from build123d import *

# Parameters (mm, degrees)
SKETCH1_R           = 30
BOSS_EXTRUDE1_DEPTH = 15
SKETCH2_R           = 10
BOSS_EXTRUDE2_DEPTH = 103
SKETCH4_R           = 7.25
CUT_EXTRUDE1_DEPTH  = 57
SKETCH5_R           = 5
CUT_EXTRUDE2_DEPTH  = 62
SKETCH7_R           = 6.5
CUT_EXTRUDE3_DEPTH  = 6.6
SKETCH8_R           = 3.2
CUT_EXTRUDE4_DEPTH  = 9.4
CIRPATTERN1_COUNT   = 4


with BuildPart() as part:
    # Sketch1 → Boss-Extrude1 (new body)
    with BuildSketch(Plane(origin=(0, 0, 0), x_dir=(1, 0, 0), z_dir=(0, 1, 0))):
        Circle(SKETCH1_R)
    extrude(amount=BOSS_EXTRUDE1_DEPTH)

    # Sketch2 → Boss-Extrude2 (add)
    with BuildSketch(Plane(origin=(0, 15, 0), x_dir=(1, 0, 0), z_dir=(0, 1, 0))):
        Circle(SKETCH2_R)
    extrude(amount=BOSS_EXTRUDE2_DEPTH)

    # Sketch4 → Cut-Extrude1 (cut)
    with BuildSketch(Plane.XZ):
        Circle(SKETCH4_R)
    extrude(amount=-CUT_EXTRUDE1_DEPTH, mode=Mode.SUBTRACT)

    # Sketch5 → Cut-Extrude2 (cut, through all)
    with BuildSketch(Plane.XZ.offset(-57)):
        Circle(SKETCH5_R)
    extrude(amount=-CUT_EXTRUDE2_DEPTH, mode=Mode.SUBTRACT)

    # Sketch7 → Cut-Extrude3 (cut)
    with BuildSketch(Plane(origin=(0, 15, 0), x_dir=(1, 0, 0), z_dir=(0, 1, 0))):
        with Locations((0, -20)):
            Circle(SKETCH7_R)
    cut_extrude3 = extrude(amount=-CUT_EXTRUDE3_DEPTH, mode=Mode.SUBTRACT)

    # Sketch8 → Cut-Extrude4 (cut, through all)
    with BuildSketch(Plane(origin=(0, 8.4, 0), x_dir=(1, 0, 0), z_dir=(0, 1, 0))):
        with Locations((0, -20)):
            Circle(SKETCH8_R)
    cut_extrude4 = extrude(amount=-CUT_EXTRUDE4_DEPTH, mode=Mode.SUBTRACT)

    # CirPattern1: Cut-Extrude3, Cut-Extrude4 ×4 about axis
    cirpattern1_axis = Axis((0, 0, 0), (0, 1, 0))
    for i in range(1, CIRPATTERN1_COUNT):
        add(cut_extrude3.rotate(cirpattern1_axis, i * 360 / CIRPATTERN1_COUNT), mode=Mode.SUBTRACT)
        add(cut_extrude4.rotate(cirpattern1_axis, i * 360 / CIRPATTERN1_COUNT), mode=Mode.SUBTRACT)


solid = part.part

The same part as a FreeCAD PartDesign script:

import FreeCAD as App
import Part
import Sketcher
from FreeCAD import Vector
Q = App.Units.Quantity

doc = App.newDocument("Part")
body = doc.addObject("PartDesign::Body", "Body")

sketch1 = body.newObject("Sketcher::SketchObject", "Sketch")
sketch1.AttachmentSupport = (doc.getObject("XZ_Plane"), [""])
sketch1.MapMode = "FlatFace"
sketch1.addGeometry(Part.Circle(Vector(0, 0, 0), Vector(0, 0, 1), 30), False)
sketch1.addConstraint([
    Sketcher.Constraint("Coincident", 0, 3, -1, 1),
    Sketcher.Constraint("Diameter", 0, Q("60 mm")),
])
pad1 = body.newObject("PartDesign::Pad", "Pad")
pad1.Profile = sketch1
pad1.Length = 15
pad1.Reversed = True

sketch2 = body.newObject("Sketcher::SketchObject", "Sketch001")
sketch2.AttachmentSupport = (doc.getObject("XZ_Plane"), [""])
sketch2.MapMode = "FlatFace"
sketch2.AttachmentOffset = App.Placement(Vector(0, 0, -15), App.Rotation())
sketch2.addGeometry(Part.Circle(Vector(0, 0, 0), Vector(0, 0, 1), 10), False)
sketch2.addConstraint([
    Sketcher.Constraint("Coincident", 0, 3, -1, 1),
    Sketcher.Constraint("Diameter", 0, Q("20 mm")),
])
pad2 = body.newObject("PartDesign::Pad", "Pad001")
pad2.Profile = sketch2
pad2.Length = 103
pad2.Reversed = True

sketch3 = body.newObject("Sketcher::SketchObject", "Sketch002")
sketch3.AttachmentSupport = (doc.getObject("XZ_Plane"), [""])
sketch3.MapMode = "FlatFace"
sketch3.addGeometry(Part.Circle(Vector(0, 0, 0), Vector(0, 0, 1), 7), False)
sketch3.addConstraint([
    Sketcher.Constraint("Coincident", 0, 3, -1, 1),
    Sketcher.Constraint("Diameter", 0, Q("14.5 mm")),
])
pocket1 = body.newObject("PartDesign::Pocket", "Pocket")
pocket1.Profile = sketch3
pocket1.Length = 57

sketch4 = body.newObject("Sketcher::SketchObject", "Sketch003")
sketch4.AttachmentSupport = (doc.getObject("XZ_Plane"), [""])
sketch4.MapMode = "FlatFace"
sketch4.AttachmentOffset = App.Placement(Vector(0, 0, -57), App.Rotation())
sketch4.addGeometry(Part.Circle(Vector(0, 0, 0), Vector(0, 0, 1), 5), False)
sketch4.addConstraint([
    Sketcher.Constraint("Coincident", 0, 3, -1, 1),
    Sketcher.Constraint("Diameter", 0, Q("10 mm")),
])
pocket2 = body.newObject("PartDesign::Pocket", "Pocket001")
pocket2.Profile = sketch4
pocket2.Type = "ThroughAll"

sketch5 = body.newObject("Sketcher::SketchObject", "Sketch004")
sketch5.AttachmentSupport = (doc.getObject("XZ_Plane"), [""])
sketch5.MapMode = "FlatFace"
sketch5.AttachmentOffset = App.Placement(Vector(0, 0, -15), App.Rotation())
sketch5.addGeometry(Part.Circle(Vector(0, 20, 0), Vector(0, 0, 1), 6), False)
sketch5.addConstraint([
    Sketcher.Constraint("PointOnObject", 0, 3, -2),
    Sketcher.Constraint("Diameter", 0, Q("13 mm")),
    Sketcher.Constraint("DistanceY", -1, 1, 0, 3, Q("20 mm")),
])
pocket3 = body.newObject("PartDesign::Pocket", "Pocket002")
pocket3.Profile = sketch5
pocket3.Length = 6.6
pocket3.Reversed = True

sketch6 = body.newObject("Sketcher::SketchObject", "Sketch005")
sketch6.AttachmentSupport = (doc.getObject("XZ_Plane"), [""])
sketch6.MapMode = "FlatFace"
sketch6.AttachmentOffset = App.Placement(Vector(0, 0, -8.4), App.Rotation())
sketch6.addGeometry(Part.Circle(Vector(0, 20, 0), Vector(0, 0, 1), 3.2), False)
sketch6.addConstraint([
    Sketcher.Constraint("PointOnObject", 0, 3, -2),
    Sketcher.Constraint("Diameter", 0, Q("6.4 mm")),
    Sketcher.Constraint("DistanceY", -1, 1, 0, 3, Q("20 mm")),
])
pocket4 = body.newObject("PartDesign::Pocket", "Pocket003")
pocket4.Profile = sketch6
pocket4.Type = "ThroughAll"
pocket4.Reversed = True
doc.recompute()

polarpattern = body.newObject("PartDesign::PolarPattern", "PolarPattern")
polarpattern.Originals = [pocket3, pocket4]
polarpattern.Axis = (doc.getObject("Y_Axis"), [""])
polarpattern.Angle = 360
polarpattern.Occurrences = 4
body.Tip = polarpattern

doc.recompute()
